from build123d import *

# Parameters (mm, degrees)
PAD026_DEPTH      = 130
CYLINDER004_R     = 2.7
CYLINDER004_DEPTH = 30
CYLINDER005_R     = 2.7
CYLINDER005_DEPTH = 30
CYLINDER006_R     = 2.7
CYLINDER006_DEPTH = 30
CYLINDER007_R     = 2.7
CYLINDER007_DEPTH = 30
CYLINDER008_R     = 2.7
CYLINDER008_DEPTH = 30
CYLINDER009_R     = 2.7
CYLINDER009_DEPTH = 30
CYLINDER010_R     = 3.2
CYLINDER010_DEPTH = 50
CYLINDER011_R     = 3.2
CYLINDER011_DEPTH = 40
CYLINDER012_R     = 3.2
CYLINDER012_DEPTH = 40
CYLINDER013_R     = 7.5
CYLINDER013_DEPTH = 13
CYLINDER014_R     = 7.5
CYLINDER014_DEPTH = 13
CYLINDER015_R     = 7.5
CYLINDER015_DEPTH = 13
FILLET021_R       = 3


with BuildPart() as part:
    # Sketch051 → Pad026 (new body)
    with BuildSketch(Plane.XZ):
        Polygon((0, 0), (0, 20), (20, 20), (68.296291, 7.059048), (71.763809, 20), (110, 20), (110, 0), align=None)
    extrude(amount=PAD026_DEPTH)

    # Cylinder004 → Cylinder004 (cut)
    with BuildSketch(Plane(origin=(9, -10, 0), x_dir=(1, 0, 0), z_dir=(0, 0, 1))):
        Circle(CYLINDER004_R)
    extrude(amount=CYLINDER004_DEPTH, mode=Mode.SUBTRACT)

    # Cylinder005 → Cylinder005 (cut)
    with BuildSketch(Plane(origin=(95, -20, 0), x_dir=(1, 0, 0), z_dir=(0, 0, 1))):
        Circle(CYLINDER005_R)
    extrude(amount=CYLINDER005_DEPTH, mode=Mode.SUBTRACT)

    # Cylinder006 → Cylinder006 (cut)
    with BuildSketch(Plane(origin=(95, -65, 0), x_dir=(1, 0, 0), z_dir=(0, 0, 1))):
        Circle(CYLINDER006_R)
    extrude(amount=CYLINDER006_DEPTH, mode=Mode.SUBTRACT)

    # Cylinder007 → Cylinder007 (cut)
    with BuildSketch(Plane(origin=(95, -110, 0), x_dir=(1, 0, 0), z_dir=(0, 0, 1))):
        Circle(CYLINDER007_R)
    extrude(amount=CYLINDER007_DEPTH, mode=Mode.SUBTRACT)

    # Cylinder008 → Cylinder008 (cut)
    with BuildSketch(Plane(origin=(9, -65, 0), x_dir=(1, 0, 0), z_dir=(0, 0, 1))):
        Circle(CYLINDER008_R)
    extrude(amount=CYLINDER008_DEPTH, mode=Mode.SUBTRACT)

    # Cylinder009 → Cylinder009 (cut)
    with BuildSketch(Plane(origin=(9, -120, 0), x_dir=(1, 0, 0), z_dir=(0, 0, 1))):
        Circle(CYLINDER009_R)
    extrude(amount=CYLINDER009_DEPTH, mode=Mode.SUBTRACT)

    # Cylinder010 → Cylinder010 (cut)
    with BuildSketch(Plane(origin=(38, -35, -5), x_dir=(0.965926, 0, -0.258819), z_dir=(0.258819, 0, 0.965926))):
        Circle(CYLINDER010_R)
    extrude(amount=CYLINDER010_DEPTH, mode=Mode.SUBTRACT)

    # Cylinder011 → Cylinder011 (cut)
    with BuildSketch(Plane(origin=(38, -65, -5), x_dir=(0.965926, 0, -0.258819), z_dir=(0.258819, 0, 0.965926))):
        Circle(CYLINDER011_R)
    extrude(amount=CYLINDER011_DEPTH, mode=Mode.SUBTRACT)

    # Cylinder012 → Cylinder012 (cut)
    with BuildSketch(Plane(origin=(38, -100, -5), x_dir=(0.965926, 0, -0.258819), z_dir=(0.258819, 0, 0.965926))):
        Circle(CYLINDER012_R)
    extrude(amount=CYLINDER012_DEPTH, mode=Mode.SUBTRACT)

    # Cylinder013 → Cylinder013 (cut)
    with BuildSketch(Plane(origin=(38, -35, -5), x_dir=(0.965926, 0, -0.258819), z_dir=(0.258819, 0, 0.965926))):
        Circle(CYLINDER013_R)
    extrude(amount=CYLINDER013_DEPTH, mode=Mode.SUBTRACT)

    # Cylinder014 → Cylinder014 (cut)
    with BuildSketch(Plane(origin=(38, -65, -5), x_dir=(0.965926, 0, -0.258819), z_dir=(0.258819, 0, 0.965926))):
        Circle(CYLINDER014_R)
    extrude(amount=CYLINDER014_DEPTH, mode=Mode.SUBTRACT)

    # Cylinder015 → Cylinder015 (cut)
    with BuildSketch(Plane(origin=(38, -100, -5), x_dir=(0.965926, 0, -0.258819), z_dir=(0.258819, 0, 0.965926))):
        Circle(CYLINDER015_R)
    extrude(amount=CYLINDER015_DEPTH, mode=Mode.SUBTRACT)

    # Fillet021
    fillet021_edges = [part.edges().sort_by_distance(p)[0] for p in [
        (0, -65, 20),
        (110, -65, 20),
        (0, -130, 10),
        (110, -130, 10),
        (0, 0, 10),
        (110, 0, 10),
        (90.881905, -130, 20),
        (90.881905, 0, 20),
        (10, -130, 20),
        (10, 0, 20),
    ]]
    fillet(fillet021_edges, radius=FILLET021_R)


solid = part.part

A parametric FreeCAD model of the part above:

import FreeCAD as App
import Part
import Sketcher
from FreeCAD import Vector
Q = App.Units.Quantity


def edges_at(feature, points):
    """Names of the edges that pass closest to the given points."""
    edges = feature.Shape.Edges
    near = lambda p: min(range(len(edges)), key=lambda i: edges[i].distToShape(Part.Vertex(*p))[0])
    return sorted({f"Edge{near(p) + 1}" for p in points})

doc = App.newDocument("Part")
body = doc.addObject("PartDesign::Body", "Body")

# Sketch on XZ plane
sketch1 = body.newObject("Sketcher::SketchObject", "Sketch")
sketch1.AttachmentSupport = (doc.getObject("XZ_Plane"), [""])
sketch1.MapMode = "FlatFace"
sketch1.addGeometry([
    Part.LineSegment(Vector(0, 20, 0), Vector(0, 0, 0)),  # 0
    Part.LineSegment(Vector(0, 0, 0), Vector(110, 0, 0)),  # 1
    Part.LineSegment(Vector(110, 0, 0), Vector(110, 20, 0)),  # 2
    Part.LineSegment(Vector(110, 20, 0), Vector(72, 20, 0)),  # 3
    Part.LineSegment(Vector(72, 20, 0), Vector(68, 7, 0)),  # 4
    Part.LineSegment(Vector(68, 7, 0), Vector(20, 20, 0)),  # 5
    Part.LineSegment(Vector(20, 20, 0), Vector(0, 20, 0)),  # 6
], False)
sketch1.addConstraint([
    Sketcher.Constraint("Coincident", 0, 2, 1, 1),
    Sketcher.Constraint("Coincident", 1, 2, 2, 1),
    Sketcher.Constraint("Coincident", 2, 2, 3, 1),
    Sketcher.Constraint("Coincident", 3, 2, 4, 1),
    Sketcher.Constraint("Coincident", 4, 2, 5, 1),
    Sketcher.Constraint("Coincident", 5, 2, 6, 1),
    Sketcher.Constraint("Coincident", 6, 2, 0, 1),
    Sketcher.Constraint("Vertical", 0),
    Sketcher.Constraint("Horizontal", 1),
    Sketcher.Constraint("Vertical", 2),
    Sketcher.Constraint("Horizontal", 3),
    Sketcher.Constraint("Horizontal", 6),
    Sketcher.Constraint("Coincident", 0, 2, -1, 1),
    Sketcher.Constraint("Perpendicular", 4, 5),
    Sketcher.Constraint("Horizontal", 3, 2, 5, 2),
    Sketcher.Constraint("Equal", 6, 0),
    Sketcher.Constraint("DistanceX", 1, 1, 1, 2, 110.0),
    Sketcher.Constraint("DistanceX", 6, 2, 6, 1, 20.0),
    Sketcher.Constraint("Angle", 4, Q("-105.000001 deg")),
    Sketcher.Constraint("Distance", 5, 50.0),
])
pad1 = body.newObject("PartDesign::Pad", "Pad")
pad1.Profile = sketch1
pad1.Length = 130

# Sketch on XY plane
sketch2 = body.newObject("Sketcher::SketchObject", "Sketch001")
sketch2.AttachmentSupport = (doc.getObject("XY_Plane"), [""])
sketch2.MapMode = "FlatFace"
sketch2.addGeometry(Part.Circle(Vector(9, -10, 0), Vector(0, 0, 1), 2.7), False)
sketch2.addConstraint([
    Sketcher.Constraint("Diameter", 0, 5.4),
    Sketcher.Constraint("DistanceX", -1, 1, 0, 3, 9.0),
    Sketcher.Constraint("DistanceY", 0, 3, -1, 1, 10.0),
])
pocket1 = body.newObject("PartDesign::Pocket", "Pocket")
pocket1.Profile = sketch2
pocket1.Length = 30
pocket1.Reversed = True

# Sketch on XY plane
sketch3 = body.newObject("Sketcher::SketchObject", "Sketch002")
sketch3.AttachmentSupport = (doc.getObject("XY_Plane"), [""])
sketch3.MapMode = "FlatFace"
sketch3.addGeometry(Part.Circle(Vector(95, -20, 0), Vector(0, 0, 1), 2.7), False)
sketch3.addConstraint([
    Sketcher.Constraint("Diameter", 0, 5.4),
    Sketcher.Constraint("DistanceX", -1, 1, 0, 3, 95.0),
    Sketcher.Constraint("DistanceY", 0, 3, -1, 1, 20.0),
])
pocket2 = body.newObject("PartDesign::Pocket", "Pocket001")
pocket2.Profile = sketch3
pocket2.Length = 30
pocket2.Reversed = True

# Sketch on XY plane
sketch4 = body.newObject("Sketcher::SketchObject", "Sketch003")
sketch4.AttachmentSupport = (doc.getObject("XY_Plane"), [""])
sketch4.MapMode = "FlatFace"
sketch4.addGeometry(Part.Circle(Vector(95, -65, 0), Vector(0, 0, 1), 2.7), False)
sketch4.addConstraint([
    Sketcher.Constraint("Diameter", 0, 5.4),
    Sketcher.Constraint("DistanceX", -1, 1, 0, 3, 95.0),
    Sketcher.Constraint("DistanceY", 0, 3, -1, 1, 65.0),
])
pocket3 = body.newObject("PartDesign::Pocket", "Pocket002")
pocket3.Profile = sketch4
pocket3.Length = 30
pocket3.Reversed = True

# Sketch on XY plane
sketch5 = body.newObject("Sketcher::SketchObject", "Sketch004")
sketch5.AttachmentSupport = (doc.getObject("XY_Plane"), [""])
sketch5.MapMode = "FlatFace"
sketch5.addGeometry(Part.Circle(Vector(95, -110, 0), Vector(0, 0, 1), 2.7), False)
sketch5.addConstraint([
    Sketcher.Constraint("Diameter", 0, 5.4),
    Sketcher.Constraint("DistanceX", -1, 1, 0, 3, 95.0),
    Sketcher.Constraint("DistanceY", 0, 3, -1, 1, 110.0),
])
pocket4 = body.newObject("PartDesign::Pocket", "Pocket003")
pocket4.Profile = sketch5
pocket4.Length = 30
pocket4.Reversed = True

# Sketch on XY plane
sketch6 = body.newObject("Sketcher::SketchObject", "Sketch005")
sketch6.AttachmentSupport = (doc.getObject("XY_Plane"), [""])
sketch6.MapMode = "FlatFace"
sketch6.addGeometry(Part.Circle(Vector(9, -65, 0), Vector(0, 0, 1), 2.7), False)
sketch6.addConstraint([
    Sketcher.Constraint("Diameter", 0, 5.4),
    Sketcher.Constraint("DistanceX", -1, 1, 0, 3, 9.0),
    Sketcher.Constraint("DistanceY", 0, 3, -1, 1, 65.0),
])
pocket5 = body.newObject("PartDesign::Pocket", "Pocket004")
pocket5.Profile = sketch6
pocket5.Length = 30
pocket5.Reversed = True

# Sketch on XY plane
sketch7 = body.newObject("Sketcher::SketchObject", "Sketch006")
sketch7.AttachmentSupport = (doc.getObject("XY_Plane"), [""])
sketch7.MapMode = "FlatFace"
sketch7.addGeometry(Part.Circle(Vector(9, -120, 0), Vector(0, 0, 1), 2.7), False)
sketch7.addConstraint([
    Sketcher.Constraint("Diameter", 0, 5.4),
    Sketcher.Constraint("DistanceX", -1, 1, 0, 3, 9.0),
    Sketcher.Constraint("DistanceY", 0, 3, -1, 1, 120.0),
])
pocket6 = body.newObject("PartDesign::Pocket", "Pocket005")
pocket6.Profile = sketch7
pocket6.Length = 30
pocket6.Reversed = True

# Sketch on an angled plane
sketch8 = body.newObject("Sketcher::SketchObject", "Sketch007")
sketch8.Placement = App.Placement(Vector(38, -35, -5), App.Rotation(Vector(0.965925849, 0, -0.25881896), Vector(0, 1, 0), Vector(0.25881896, 0, 0.965925849), "ZXY"))
sketch8.addGeometry(Part.Circle(Vector(0, 0, 0), Vector(0, 0, 1), 3.2), False)
sketch8.addConstraint([
    Sketcher.Constraint("Coincident", 0, 3, -1, 1),
    Sketcher.Constraint("Diameter", 0, 6.4),
])
pocket7 = body.newObject("PartDesign::Pocket", "Pocket006")
pocket7.Profile = sketch8
pocket7.Length = 50
pocket7.Reversed = True

# Sketch on an angled plane
sketch9 = body.newObject("Sketcher::SketchObject", "Sketch008")
sketch9.Placement = App.Placement(Vector(38, -65, -5), App.Rotation(Vector(0.965925849, 0, -0.25881896), Vector(0, 1, 0), Vector(0.25881896, 0, 0.965925849), "ZXY"))
sketch9.addGeometry(Part.Circle(Vector(0, 0, 0), Vector(0, 0, 1), 3.2), False)
sketch9.addConstraint([
    Sketcher.Constraint("Coincident", 0, 3, -1, 1),
    Sketcher.Constraint("Diameter", 0, 6.4),
])
pocket8 = body.newObject("PartDesign::Pocket", "Pocket007")
pocket8.Profile = sketch9
pocket8.Length = 40
pocket8.Reversed = True

# Sketch on an angled plane
sketch10 = body.newObject("Sketcher::SketchObject", "Sketch009")
sketch10.Placement = App.Placement(Vector(38, -100, -5), App.Rotation(Vector(0.965925849, 0, -0.25881896), Vector(0, 1, 0), Vector(0.25881896, 0, 0.965925849), "ZXY"))
sketch10.addGeometry(Part.Circle(Vector(0, 0, 0), Vector(0, 0, 1), 3.2), False)
sketch10.addConstraint([
    Sketcher.Constraint("Coincident", 0, 3, -1, 1),
    Sketcher.Constraint("Diameter", 0, 6.4),
])
pocket9 = body.newObject("PartDesign::Pocket", "Pocket008")
pocket9.Profile = sketch10
pocket9.Length = 40
pocket9.Reversed = True

# Sketch on an angled plane
sketch11 = body.newObject("Sketcher::SketchObject", "Sketch010")
sketch11.Placement = App.Placement(Vector(38, -35, -5), App.Rotation(Vector(0.965925849, 0, -0.25881896), Vector(0, 1, 0), Vector(0.25881896, 0, 0.965925849), "ZXY"))
sketch11.addGeometry(Part.Circle(Vector(0, 0, 0), Vector(0, 0, 1), 8), False)
sketch11.addConstraint([
    Sketcher.Constraint("Coincident", 0, 3, -1, 1),
    Sketcher.Constraint("Diameter", 0, 15.0),
])
pocket10 = body.newObject("PartDesign::Pocket", "Pocket009")
pocket10.Profile = sketch11
pocket10.Length = 13
pocket10.Reversed = True

# Sketch on an angled plane
sketch12 = body.newObject("Sketcher::SketchObject", "Sketch011")
sketch12.Placement = App.Placement(Vector(38, -65, -5), App.Rotation(Vector(0.965925849, 0, -0.25881896), Vector(0, 1, 0), Vector(0.25881896, 0, 0.965925849), "ZXY"))
sketch12.addGeometry(Part.Circle(Vector(0, 0, 0), Vector(0, 0, 1), 8), False)
sketch12.addConstraint([
    Sketcher.Constraint("Coincident", 0, 3, -1, 1),
    Sketcher.Constraint("Diameter", 0, 15.0),
])
pocket11 = body.newObject("PartDesign::Pocket", "Pocket010")
pocket11.Profile = sketch12
pocket11.Length = 13
pocket11.Reversed = True

# Sketch on an angled plane
sketch13 = body.newObject("Sketcher::SketchObject", "Sketch012")
sketch13.Placement = App.Placement(Vector(38, -100, -5), App.Rotation(Vector(0.965925849, 0, -0.25881896), Vector(0, 1, 0), Vector(0.25881896, 0, 0.965925849), "ZXY"))
sketch13.addGeometry(Part.Circle(Vector(0, 0, 0), Vector(0, 0, 1), 8), False)
sketch13.addConstraint([
    Sketcher.Constraint("Coincident", 0, 3, -1, 1),
    Sketcher.Constraint("Diameter", 0, 15.0),
])
pocket12 = body.newObject("PartDesign::Pocket", "Pocket011")
pocket12.Profile = sketch13
pocket12.Length = 13
pocket12.Reversed = True
doc.recompute()

fillet = body.newObject("PartDesign::Fillet", "Fillet")
fillet.Base = (pocket12, edges_at(pocket12, [
    (0, -65, 20),
    (110, -65, 20),
    (0, -130, 10),
    (110, -130, 10),
    (0, 0, 10),
    (110, 0, 10),
    (90.882, -130, 20),
    (90.882, 0, 20),
    (10, -130, 20),
    (10, 0, 20),
]))
fillet.Radius = 3

doc.recompute()
